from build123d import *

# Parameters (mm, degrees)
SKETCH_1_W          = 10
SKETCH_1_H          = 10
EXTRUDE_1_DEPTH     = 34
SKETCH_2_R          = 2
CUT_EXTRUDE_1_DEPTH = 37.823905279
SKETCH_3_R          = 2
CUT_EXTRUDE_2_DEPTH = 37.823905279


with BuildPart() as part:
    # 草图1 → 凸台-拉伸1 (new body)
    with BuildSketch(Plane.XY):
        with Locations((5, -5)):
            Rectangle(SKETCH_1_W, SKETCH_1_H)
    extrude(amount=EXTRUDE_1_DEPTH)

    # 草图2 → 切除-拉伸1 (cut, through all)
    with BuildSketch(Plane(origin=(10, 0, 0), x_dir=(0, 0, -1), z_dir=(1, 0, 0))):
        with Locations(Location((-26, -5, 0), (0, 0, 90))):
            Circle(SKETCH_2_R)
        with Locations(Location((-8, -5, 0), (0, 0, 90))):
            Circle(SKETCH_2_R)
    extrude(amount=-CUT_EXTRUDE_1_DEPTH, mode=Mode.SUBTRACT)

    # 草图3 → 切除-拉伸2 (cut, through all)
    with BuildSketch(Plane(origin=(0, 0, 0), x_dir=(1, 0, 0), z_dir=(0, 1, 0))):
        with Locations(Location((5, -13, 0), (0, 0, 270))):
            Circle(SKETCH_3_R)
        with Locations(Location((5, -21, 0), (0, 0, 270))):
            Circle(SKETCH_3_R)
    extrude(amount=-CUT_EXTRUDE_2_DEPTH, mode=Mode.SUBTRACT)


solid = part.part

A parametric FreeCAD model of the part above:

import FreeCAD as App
import Part
import Sketcher
Q = App.Units.Quantity


def add_polygon(sketch, points):
    """Adds a closed chain of lines whose ends are joined by coincident constraints."""
    first, n = sketch.GeometryCount, len(points)
    for a, b in zip(points, points[1:] + points[:1]):
        sketch.addGeometry(Part.LineSegment(App.Vector(*a, 0), App.Vector(*b, 0)), False)
    for i in range(n):
        sketch.addConstraint(Sketcher.Constraint("Coincident", first + i, 2, first + (i + 1) % n, 1))

doc = App.newDocument("Part")
params = doc.addObject("Spreadsheet::Sheet", "Params")
for row, (alias, value) in enumerate([
    ("sketch1_width", "10 mm"),
    ("pad1_length", "34 mm"),
    ("sketch2_diameter", "4 mm"),
    ("sketch3_diameter", "4 mm"),
], start=1):
    params.set(f"A{row}", alias)
    params.set(f"B{row}", "=" + value)
    params.setAlias(f"B{row}", alias)

body = doc.addObject("PartDesign::Body", "Body")

# Sketch on XY plane
sketch1 = doc.addObject("Sketcher::SketchObject", "Sketch")
body.addObject(sketch1)
sketch1.AttachmentSupport = (doc.XY_Plane, [""])
sketch1.MapMode = "FlatFace"
add_polygon(sketch1, [(0, 0), (0, -10), (10, -10), (10, 0)])  # lines 0-3
sketch1.addConstraint(Sketcher.Constraint("Vertical", 0))
sketch1.addConstraint(Sketcher.Constraint("Horizontal", 1))
sketch1.addConstraint(Sketcher.Constraint("Vertical", 2))
sketch1.addConstraint(Sketcher.Constraint("Horizontal", 3))
sketch1.addConstraint(Sketcher.Constraint("Coincident", 3, 2, -1, 1))
sketch1.addConstraint(Sketcher.Constraint("Equal", 3, 0))
sketch1.addConstraint(Sketcher.Constraint("DistanceX", 1, 1, 1, 2, Q("10 mm")))
sketch1.setExpression("Constraints[10]", "Params.sketch1_width")
pad1 = doc.addObject("PartDesign::Pad", "Pad")
body.addObject(pad1)
pad1.Profile = sketch1
pad1.setExpression("Length", "Params.pad1_length")

# Sketch on YZ plane
sketch2 = doc.addObject("Sketcher::SketchObject", "Sketch001")
body.addObject(sketch2)
sketch2.AttachmentSupport = (doc.YZ_Plane, [""])
sketch2.MapMode = "FlatFace"
sketch2.AttachmentOffset = App.Placement(App.Vector(0, 0, 10), App.Rotation())
sketch2.addGeometry(Part.Circle(App.Vector(-5, 26, 0), App.Vector(0, 0, 1), 2), False)
sketch2.addGeometry(Part.Circle(App.Vector(-5, 8, 0), App.Vector(0, 0, 1), 2), False)
sketch2.addConstraint(Sketcher.Constraint("Equal", 0, 1))
sketch2.addConstraint(Sketcher.Constraint("Vertical", 0, 3, 1, 3))
sketch2.addConstraint(Sketcher.Constraint("Diameter", 0, Q("4 mm")))
sketch2.addConstraint(Sketcher.Constraint("DistanceX", 0, 3, -1, 1, Q("5 mm")))
sketch2.addConstraint(Sketcher.Constraint("DistanceY", -1, 1, 0, 3, Q("26 mm")))
sketch2.addConstraint(Sketcher.Constraint("DistanceY", -1, 1, 1, 3, Q("8 mm")))
sketch2.setExpression("Constraints[2]", "Params.sketch2_diameter")
pocket1 = doc.addObject("PartDesign::Pocket", "Pocket")
body.addObject(pocket1)
pocket1.Profile = sketch2
pocket1.Type = "ThroughAll"

# Sketch on XZ plane
sketch3 = doc.addObject("Sketcher::SketchObject", "Sketch002")
body.addObject(sketch3)
sketch3.AttachmentSupport = (doc.XZ_Plane, [""])
sketch3.MapMode = "FlatFace"
sketch3.addGeometry(Part.Circle(App.Vector(5, 13, 0), App.Vector(0, 0, 1), 2), False)
sketch3.addGeometry(Part.Circle(App.Vector(5, 21, 0), App.Vector(0, 0, 1), 2), False)
sketch3.addConstraint(Sketcher.Constraint("Equal", 0, 1))
sketch3.addConstraint(Sketcher.Constraint("Vertical", 0, 3, 1, 3))
sketch3.addConstraint(Sketcher.Constraint("Diameter", 0, Q("4 mm")))
sketch3.addConstraint(Sketcher.Constraint("DistanceX", -1, 1, 0, 3, Q("5 mm")))
sketch3.addConstraint(Sketcher.Constraint("DistanceY", -1, 1, 0, 3, Q("13 mm")))
sketch3.addConstraint(Sketcher.Constraint("DistanceY", -1, 1, 1, 3, Q("21 mm")))
sketch3.setExpression("Constraints[2]", "Params.sketch3_diameter")
pocket2 = doc.addObject("PartDesign::Pocket", "Pocket001")
body.addObject(pocket2)
pocket2.Profile = sketch3
pocket2.Type = "ThroughAll"
pocket2.Reversed = True

doc.recompute()
